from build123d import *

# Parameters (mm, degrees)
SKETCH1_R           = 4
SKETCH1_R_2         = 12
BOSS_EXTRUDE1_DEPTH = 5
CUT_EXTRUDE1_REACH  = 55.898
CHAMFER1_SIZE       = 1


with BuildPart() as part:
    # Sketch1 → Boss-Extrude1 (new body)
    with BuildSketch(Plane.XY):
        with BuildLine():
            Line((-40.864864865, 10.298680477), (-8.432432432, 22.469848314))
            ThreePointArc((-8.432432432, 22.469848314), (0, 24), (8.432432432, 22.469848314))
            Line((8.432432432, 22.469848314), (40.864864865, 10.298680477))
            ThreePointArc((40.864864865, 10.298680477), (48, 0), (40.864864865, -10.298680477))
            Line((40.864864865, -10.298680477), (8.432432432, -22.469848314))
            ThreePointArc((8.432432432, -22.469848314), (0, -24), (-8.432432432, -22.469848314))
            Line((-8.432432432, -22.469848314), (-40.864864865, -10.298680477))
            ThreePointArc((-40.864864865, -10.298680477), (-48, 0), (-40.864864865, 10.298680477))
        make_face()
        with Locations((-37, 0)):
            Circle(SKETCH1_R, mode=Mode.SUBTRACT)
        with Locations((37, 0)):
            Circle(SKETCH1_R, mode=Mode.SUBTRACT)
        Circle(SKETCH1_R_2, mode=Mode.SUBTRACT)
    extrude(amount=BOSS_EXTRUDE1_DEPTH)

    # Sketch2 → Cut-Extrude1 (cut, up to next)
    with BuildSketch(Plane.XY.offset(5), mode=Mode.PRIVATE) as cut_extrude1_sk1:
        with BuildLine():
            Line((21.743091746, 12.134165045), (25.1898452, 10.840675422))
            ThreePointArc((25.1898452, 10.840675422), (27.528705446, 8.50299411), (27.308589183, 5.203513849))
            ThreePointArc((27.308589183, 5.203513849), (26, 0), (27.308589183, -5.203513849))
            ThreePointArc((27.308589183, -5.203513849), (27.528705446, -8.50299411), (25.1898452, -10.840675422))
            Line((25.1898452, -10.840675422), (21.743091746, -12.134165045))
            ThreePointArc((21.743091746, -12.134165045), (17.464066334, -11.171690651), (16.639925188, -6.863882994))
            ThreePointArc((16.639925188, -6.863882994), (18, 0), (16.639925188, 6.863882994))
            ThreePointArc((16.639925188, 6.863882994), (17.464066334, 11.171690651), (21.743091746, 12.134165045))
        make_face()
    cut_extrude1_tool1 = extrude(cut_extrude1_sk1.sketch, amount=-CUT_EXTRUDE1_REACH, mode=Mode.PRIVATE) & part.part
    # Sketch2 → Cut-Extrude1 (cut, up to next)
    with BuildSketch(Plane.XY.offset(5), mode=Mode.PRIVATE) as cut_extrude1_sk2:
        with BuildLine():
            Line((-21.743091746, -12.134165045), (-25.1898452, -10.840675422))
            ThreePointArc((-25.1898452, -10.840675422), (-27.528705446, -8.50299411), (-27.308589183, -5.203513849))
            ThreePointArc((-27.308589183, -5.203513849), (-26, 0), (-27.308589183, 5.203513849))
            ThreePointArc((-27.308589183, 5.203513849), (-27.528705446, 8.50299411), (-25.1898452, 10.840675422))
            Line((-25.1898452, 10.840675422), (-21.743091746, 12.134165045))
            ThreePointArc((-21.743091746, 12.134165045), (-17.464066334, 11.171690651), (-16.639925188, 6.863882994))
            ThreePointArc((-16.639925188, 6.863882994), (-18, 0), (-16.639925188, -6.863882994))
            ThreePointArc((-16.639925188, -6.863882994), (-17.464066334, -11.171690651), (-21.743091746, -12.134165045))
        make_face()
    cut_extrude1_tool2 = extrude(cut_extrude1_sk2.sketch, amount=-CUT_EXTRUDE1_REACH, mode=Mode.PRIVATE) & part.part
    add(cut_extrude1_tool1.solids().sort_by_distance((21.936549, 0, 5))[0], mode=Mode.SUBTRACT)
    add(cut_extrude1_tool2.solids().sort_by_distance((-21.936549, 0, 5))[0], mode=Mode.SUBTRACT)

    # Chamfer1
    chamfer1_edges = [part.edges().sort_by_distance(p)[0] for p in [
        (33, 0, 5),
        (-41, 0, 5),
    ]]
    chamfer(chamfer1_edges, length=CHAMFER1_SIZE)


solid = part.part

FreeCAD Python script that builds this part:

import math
import FreeCAD as App
import Part
import Sketcher
from FreeCAD import Vector
Q = App.Units.Quantity


def edges_at(feature, points):
    """Names of the edges that pass closest to the given points."""
    edges = feature.Shape.Edges
    near = lambda p: min(range(len(edges)), key=lambda i: edges[i].distToShape(Part.Vertex(*p))[0])
    return sorted({f"Edge{near(p) + 1}" for p in points})

doc = App.newDocument("Part")
body = doc.addObject("PartDesign::Body", "Body")

sketch1 = doc.addObject("Sketcher::SketchObject", "Sketch")
body.addObject(sketch1)
sketch1.AttachmentSupport = (doc.XY_Plane, [""])
sketch1.MapMode = "FlatFace"
sketch1.addGeometry(Part.LineSegment(Vector(-8.4, 22.5, 0), Vector(-40.9, 10.3, 0)), False)
sketch1.addGeometry(Part.ArcOfCircle(Part.Circle(Vector(-37, 0, 0), Vector(0, 0, 1), 11), math.radians(111), math.radians(249)), False)
sketch1.addGeometry(Part.LineSegment(Vector(-40.9, -10.3, 0), Vector(-8.4, -22.5, 0)), False)
sketch1.addGeometry(Part.ArcOfCircle(Part.Circle(Vector(0, 0, 0), Vector(0, 0, 1), 24), math.radians(-111), math.radians(-69)), False)
sketch1.addGeometry(Part.LineSegment(Vector(8.4, -22.5, 0), Vector(40.9, -10.3, 0)), False)
sketch1.addGeometry(Part.ArcOfCircle(Part.Circle(Vector(37, 0, 0), Vector(0, 0, 1), 11), math.radians(-69), math.radians(69)), False)
sketch1.addGeometry(Part.LineSegment(Vector(40.9, 10.3, 0), Vector(8.4, 22.5, 0)), False)
sketch1.addGeometry(Part.ArcOfCircle(Part.Circle(Vector(0, 0, 0), Vector(0, 0, 1), 24), math.radians(69), math.radians(111)), False)
sketch1.addGeometry(Part.Circle(Vector(37, 0, 0), Vector(0, 0, 1), 4), False)
sketch1.addGeometry(Part.Circle(Vector(0, 0, 0), Vector(0, 0, 1), 12), False)
sketch1.addGeometry(Part.Circle(Vector(-37, 0, 0), Vector(0, 0, 1), 4), False)
sketch1.addConstraint(Sketcher.Constraint("Tangent", 0, 2, 1, 1))
sketch1.addConstraint(Sketcher.Constraint("Tangent", 1, 2, 2, 1))
sketch1.addConstraint(Sketcher.Constraint("Tangent", 2, 2, 3, 1))
sketch1.addConstraint(Sketcher.Constraint("Tangent", 3, 2, 4, 1))
sketch1.addConstraint(Sketcher.Constraint("Tangent", 4, 2, 5, 1))
sketch1.addConstraint(Sketcher.Constraint("Tangent", 5, 2, 6, 1))
sketch1.addConstraint(Sketcher.Constraint("Tangent", 6, 2, 7, 1))
sketch1.addConstraint(Sketcher.Constraint("Tangent", 7, 2, 0, 1))
sketch1.addConstraint(Sketcher.Constraint("Coincident", 3, 3, -1, 1))
sketch1.addConstraint(Sketcher.Constraint("Coincident", 7, 3, -1, 1))
sketch1.addConstraint(Sketcher.Constraint("Coincident", 9, 3, -1, 1))
sketch1.addConstraint(Sketcher.Constraint("Coincident", 8, 3, 5, 3))
sketch1.addConstraint(Sketcher.Constraint("Coincident", 10, 3, 1, 3))
sketch1.addConstraint(Sketcher.Constraint("Equal", 1, 5))
sketch1.addConstraint(Sketcher.Constraint("Equal", 3, 7))
sketch1.addConstraint(Sketcher.Constraint("Equal", 8, 10))
sketch1.addConstraint(Sketcher.Constraint("Symmetric", 1, 3, 5, 3, -1, 1))
sketch1.addConstraint(Sketcher.Constraint("PointOnObject", 1, 3, -1))
sketch1.addConstraint(Sketcher.Constraint("Diameter", 8, 8.0))
sketch1.addConstraint(Sketcher.Constraint("Diameter", 9, 24.0))
sketch1.addConstraint(Sketcher.Constraint("Radius", 1, 11.0))
sketch1.addConstraint(Sketcher.Constraint("Radius", 3, 24.0))
sketch1.addConstraint(Sketcher.Constraint("DistanceX", 1, 3, -1, 1, 37.0))
pad1 = doc.addObject("PartDesign::Pad", "Pad")
body.addObject(pad1)
pad1.Profile = sketch1
pad1.Length = 5

sketch2 = doc.addObject("Sketcher::SketchObject", "Sketch001")
body.addObject(sketch2)
sketch2.AttachmentSupport = (doc.XY_Plane, [""])
sketch2.MapMode = "FlatFace"
sketch2.AttachmentOffset = App.Placement(Vector(0, 0, 5), App.Rotation())
sketch2.addGeometry(Part.LineSegment(Vector(25.2, 10.8, 0), Vector(21.7, 12.1, 0)), False)
sketch2.addGeometry(Part.ArcOfCircle(Part.Circle(Vector(20.3, 8.4, 0), Vector(0, 0, 1), 4), math.radians(69), math.radians(202)), False)
sketch2.addGeometry(Part.ArcOfCircle(Part.Circle(Vector(0, 0, 0), Vector(0, 0, 1), 18), math.radians(-22), math.radians(22)), False)
sketch2.addGeometry(Part.ArcOfCircle(Part.Circle(Vector(20.3, -8.4, 0), Vector(0, 0, 1), 4), math.radians(158), math.radians(291)), False)
sketch2.addGeometry(Part.LineSegment(Vector(21.7, -12.1, 0), Vector(25.2, -10.8, 0)), False)
sketch2.addGeometry(Part.ArcOfCircle(Part.Circle(Vector(23.8, -7.1, 0), Vector(0, 0, 1), 4), math.radians(-69), math.radians(28)), False)
sketch2.addGeometry(Part.ArcOfCircle(Part.Circle(Vector(37, 0, 0), Vector(0, 0, 1), 11), math.radians(152), math.radians(208)), False)
sketch2.addGeometry(Part.ArcOfCircle(Part.Circle(Vector(23.8, 7.1, 0), Vector(0, 0, 1), 4), math.radians(-28), math.radians(69)), False)
sketch2.addConstraint(Sketcher.Constraint("Tangent", 0, 2, 1, 1))
sketch2.addConstraint(Sketcher.Constraint("Tangent", 1, 2, 2, 2))
sketch2.addConstraint(Sketcher.Constraint("Tangent", 2, 1, 3, 1))
sketch2.addConstraint(Sketcher.Constraint("Tangent", 3, 2, 4, 1))
sketch2.addConstraint(Sketcher.Constraint("Tangent", 4, 2, 5, 1))
sketch2.addConstraint(Sketcher.Constraint("Tangent", 5, 2, 6, 2))
sketch2.addConstraint(Sketcher.Constraint("Tangent", 6, 1, 7, 1))
sketch2.addConstraint(Sketcher.Constraint("Tangent", 7, 2, 0, 1))
sketch2.addConstraint(Sketcher.Constraint("Coincident", 2, 3, -1, 1))
sketch2.addConstraint(Sketcher.Constraint("Equal", 1, 3))
sketch2.addConstraint(Sketcher.Constraint("Equal", 3, 5))
sketch2.addConstraint(Sketcher.Constraint("Equal", 5, 7))
sketch2.addConstraint(Sketcher.Constraint("Symmetric", 5, 3, 7, 3, -1))
sketch2.addConstraint(Sketcher.Constraint("Vertical", 1, 3, 3, 3))
sketch2.addConstraint(Sketcher.Constraint("Radius", 1, 4.0))
sketch2.addConstraint(Sketcher.Constraint("Radius", 2, 18.0))
sketch2.addConstraint(Sketcher.Constraint("Radius", 6, 11.0))
sketch2.addConstraint(Sketcher.Constraint("DistanceX", -1, 1, 6, 3, 37.0))
sketch2.addConstraint(Sketcher.Constraint("Angle", 0, Q("159.430008 deg")))
sketch2.addConstraint(Sketcher.Constraint("DistanceY", 5, 3, -1, 1, 7.095701))
pocket1 = doc.addObject("PartDesign::Pocket", "Pocket")
body.addObject(pocket1)
pocket1.Profile = sketch2
pocket1.Type = "UpToFirst"

sketch3 = doc.addObject("Sketcher::SketchObject", "Sketch002")
body.addObject(sketch3)
sketch3.AttachmentSupport = (doc.XY_Plane, [""])
sketch3.MapMode = "FlatFace"
sketch3.AttachmentOffset = App.Placement(Vector(0, 0, 5), App.Rotation())
sketch3.addGeometry(Part.LineSegment(Vector(-25.2, -10.8, 0), Vector(-21.7, -12.1, 0)), False)
sketch3.addGeometry(Part.ArcOfCircle(Part.Circle(Vector(-20.3, -8.4, 0), Vector(0, 0, 1), 4), math.radians(-111), math.radians(22)), False)
sketch3.addGeometry(Part.ArcOfCircle(Part.Circle(Vector(0, 0, 0), Vector(0, 0, 1), 18), math.radians(158), math.radians(202)), False)
sketch3.addGeometry(Part.ArcOfCircle(Part.Circle(Vector(-20.3, 8.4, 0), Vector(0, 0, 1), 4), math.radians(-22), math.radians(111)), False)
sketch3.addGeometry(Part.LineSegment(Vector(-21.7, 12.1, 0), Vector(-25.2, 10.8, 0)), False)
sketch3.addGeometry(Part.ArcOfCircle(Part.Circle(Vector(-23.8, 7.1, 0), Vector(0, 0, 1), 4), math.radians(111), math.radians(208)), False)
sketch3.addGeometry(Part.ArcOfCircle(Part.Circle(Vector(-37, 0, 0), Vector(0, 0, 1), 11), math.radians(-28), math.radians(28)), False)
sketch3.addGeometry(Part.ArcOfCircle(Part.Circle(Vector(-23.8, -7.1, 0), Vector(0, 0, 1), 4), math.radians(152), math.radians(249)), False)
sketch3.addConstraint(Sketcher.Constraint("Tangent", 0, 2, 1, 1))
sketch3.addConstraint(Sketcher.Constraint("Tangent", 1, 2, 2, 2))
sketch3.addConstraint(Sketcher.Constraint("Tangent", 2, 1, 3, 1))
sketch3.addConstraint(Sketcher.Constraint("Tangent", 3, 2, 4, 1))
sketch3.addConstraint(Sketcher.Constraint("Tangent", 4, 2, 5, 1))
sketch3.addConstraint(Sketcher.Constraint("Tangent", 5, 2, 6, 2))
sketch3.addConstraint(Sketcher.Constraint("Tangent", 6, 1, 7, 1))
sketch3.addConstraint(Sketcher.Constraint("Tangent", 7, 2, 0, 1))
sketch3.addConstraint(Sketcher.Constraint("Coincident", 2, 3, -1, 1))
sketch3.addConstraint(Sketcher.Constraint("Equal", 1, 3))
sketch3.addConstraint(Sketcher.Constraint("Equal", 3, 5))
sketch3.addConstraint(Sketcher.Constraint("Equal", 5, 7))
sketch3.addConstraint(Sketcher.Constraint("Symmetric", 5, 3, 7, 3, -1))
sketch3.addConstraint(Sketcher.Constraint("Vertical", 1, 3, 3, 3))
sketch3.addConstraint(Sketcher.Constraint("Radius", 1, 4.0))
sketch3.addConstraint(Sketcher.Constraint("Radius", 2, 18.0))
sketch3.addConstraint(Sketcher.Constraint("Radius", 6, 11.0))
sketch3.addConstraint(Sketcher.Constraint("DistanceX", 6, 3, -1, 1, 37.0))
sketch3.addConstraint(Sketcher.Constraint("Angle", 0, Q("-20.569992 deg")))
sketch3.addConstraint(Sketcher.Constraint("DistanceY", -1, 1, 5, 3, 7.095701))
pocket2 = doc.addObject("PartDesign::Pocket", "Pocket001")
body.addObject(pocket2)
pocket2.Profile = sketch3
pocket2.Type = "UpToFirst"
doc.recompute()

chamfer = doc.addObject("PartDesign::Chamfer", "Chamfer")
body.addObject(chamfer)
chamfer.Base = (pocket2, edges_at(pocket2, [(33, 0, 5), (-41, 0, 5)]))
chamfer.Size = 1

doc.recompute()
